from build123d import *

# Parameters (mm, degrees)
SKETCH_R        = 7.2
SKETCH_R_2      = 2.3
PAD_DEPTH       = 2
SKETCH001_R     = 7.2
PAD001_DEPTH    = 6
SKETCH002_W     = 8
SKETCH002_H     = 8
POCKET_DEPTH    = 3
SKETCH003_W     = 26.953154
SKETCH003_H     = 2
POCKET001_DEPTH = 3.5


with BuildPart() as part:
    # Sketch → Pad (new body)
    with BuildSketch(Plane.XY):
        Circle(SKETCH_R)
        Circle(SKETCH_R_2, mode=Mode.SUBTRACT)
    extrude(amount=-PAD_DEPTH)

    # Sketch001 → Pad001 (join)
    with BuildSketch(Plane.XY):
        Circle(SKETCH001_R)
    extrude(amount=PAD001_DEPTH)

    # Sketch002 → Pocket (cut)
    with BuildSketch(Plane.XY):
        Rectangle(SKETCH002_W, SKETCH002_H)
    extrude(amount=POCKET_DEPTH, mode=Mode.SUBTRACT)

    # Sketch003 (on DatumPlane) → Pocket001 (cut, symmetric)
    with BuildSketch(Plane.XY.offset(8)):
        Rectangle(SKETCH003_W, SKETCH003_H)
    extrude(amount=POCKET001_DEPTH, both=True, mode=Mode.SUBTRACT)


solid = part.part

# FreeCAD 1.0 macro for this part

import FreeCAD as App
import Part
import Sketcher
from FreeCAD import Vector

doc = App.newDocument("Part")
body = doc.addObject("PartDesign::Body", "Body")

sketch1 = doc.addObject("Sketcher::SketchObject", "Sketch")
body.addObject(sketch1)
sketch1.AttachmentSupport = (doc.XY_Plane, [""])
sketch1.MapMode = "FlatFace"
sketch1.addGeometry([
    Part.Circle(Vector(0, 0, 0), Vector(0, 0, 1), 7.2),
    Part.Circle(Vector(0, 0, 0), Vector(0, 0, 1), 2.3),
], False)
sketch1.addConstraint([
    Sketcher.Constraint("Coincident", 0, 3, -1, 1),
    Sketcher.Constraint("Coincident", 1, 3, -1, 1),
    Sketcher.Constraint("Diameter", 0, 14.4),
    Sketcher.Constraint("Diameter", 1, 4.6),
])
pad1 = doc.addObject("PartDesign::Pad", "Pad")
body.addObject(pad1)
pad1.Profile = sketch1
pad1.Length = 2
pad1.Reversed = True

sketch2 = doc.addObject("Sketcher::SketchObject", "Sketch001")
body.addObject(sketch2)
sketch2.AttachmentSupport = (doc.XY_Plane, [""])
sketch2.MapMode = "FlatFace"
sketch2.addGeometry(Part.Circle(Vector(0, 0, 0), Vector(0, 0, 1), 7), False)
sketch2.addConstraint([
    Sketcher.Constraint("Coincident", 0, 3, -1, 1),
    Sketcher.Constraint("Diameter", 0, 14.4),
])
pad2 = doc.addObject("PartDesign::Pad", "Pad001")
body.addObject(pad2)
pad2.Profile = sketch2
pad2.Length = 6

sketch3 = doc.addObject("Sketcher::SketchObject", "Sketch002")
body.addObject(sketch3)
sketch3.AttachmentSupport = (doc.XY_Plane, [""])
sketch3.MapMode = "FlatFace"
sketch3.addGeometry([
    Part.LineSegment(Vector(-4, 4, 0), Vector(-4, -4, 0)),
    Part.LineSegment(Vector(-4, -4, 0), Vector(4, -4, 0)),
    Part.LineSegment(Vector(4, -4, 0), Vector(4, 4, 0)),
    Part.LineSegment(Vector(4, 4, 0), Vector(-4, 4, 0)),
], False)
sketch3.addConstraint([
    Sketcher.Constraint("Coincident", 0, 2, 1, 1),
    Sketcher.Constraint("Coincident", 1, 2, 2, 1),
    Sketcher.Constraint("Coincident", 2, 2, 3, 1),
    Sketcher.Constraint("Coincident", 3, 2, 0, 1),
    Sketcher.Constraint("Vertical", 0),
    Sketcher.Constraint("Horizontal", 1),
    Sketcher.Constraint("Vertical", 2),
    Sketcher.Constraint("Horizontal", 3),
    Sketcher.Constraint("Symmetric", 0, 2, 2, 2, -1, 1),
    Sketcher.Constraint("Equal", 3, 0),
    Sketcher.Constraint("DistanceX", 1, 1, 1, 2, 8.0),
])
pocket1 = doc.addObject("PartDesign::Pocket", "Pocket")
body.addObject(pocket1)
pocket1.Profile = sketch3
pocket1.Length = 3
pocket1.Reversed = True

sketch4 = doc.addObject("Sketcher::SketchObject", "Sketch003")
body.addObject(sketch4)
sketch4.AttachmentSupport = (doc.XY_Plane, [""])
sketch4.MapMode = "FlatFace"
sketch4.AttachmentOffset = App.Placement(Vector(0, 0, 8), App.Rotation())
sketch4.addGeometry([
    Part.LineSegment(Vector(-13.5, 1, 0), Vector(-13.5, -1, 0)),
    Part.LineSegment(Vector(-13.5, -1, 0), Vector(13.5, -1, 0)),
    Part.LineSegment(Vector(13.5, -1, 0), Vector(13.5, 1, 0)),
    Part.LineSegment(Vector(13.5, 1, 0), Vector(-13.5, 1, 0)),
], False)
sketch4.addConstraint([
    Sketcher.Constraint("Coincident", 0, 2, 1, 1),
    Sketcher.Constraint("Coincident", 1, 2, 2, 1),
    Sketcher.Constraint("Coincident", 2, 2, 3, 1),
    Sketcher.Constraint("Coincident", 3, 2, 0, 1),
    Sketcher.Constraint("Vertical", 0),
    Sketcher.Constraint("Horizontal", 1),
    Sketcher.Constraint("Vertical", 2),
    Sketcher.Constraint("Horizontal", 3),
    Sketcher.Constraint("Symmetric", 0, 2, 2, 2, -1, 1),
    Sketcher.Constraint("DistanceY", 0, 2, 0, 1, 2.0),
    Sketcher.Constraint("DistanceX", 1, 1, 1, 2, 26.953154),
])
pocket2 = doc.addObject("PartDesign::Pocket", "Pocket001")
body.addObject(pocket2)
pocket2.Profile = sketch4
pocket2.Length = 7
pocket2.Midplane = True

doc.recompute()
